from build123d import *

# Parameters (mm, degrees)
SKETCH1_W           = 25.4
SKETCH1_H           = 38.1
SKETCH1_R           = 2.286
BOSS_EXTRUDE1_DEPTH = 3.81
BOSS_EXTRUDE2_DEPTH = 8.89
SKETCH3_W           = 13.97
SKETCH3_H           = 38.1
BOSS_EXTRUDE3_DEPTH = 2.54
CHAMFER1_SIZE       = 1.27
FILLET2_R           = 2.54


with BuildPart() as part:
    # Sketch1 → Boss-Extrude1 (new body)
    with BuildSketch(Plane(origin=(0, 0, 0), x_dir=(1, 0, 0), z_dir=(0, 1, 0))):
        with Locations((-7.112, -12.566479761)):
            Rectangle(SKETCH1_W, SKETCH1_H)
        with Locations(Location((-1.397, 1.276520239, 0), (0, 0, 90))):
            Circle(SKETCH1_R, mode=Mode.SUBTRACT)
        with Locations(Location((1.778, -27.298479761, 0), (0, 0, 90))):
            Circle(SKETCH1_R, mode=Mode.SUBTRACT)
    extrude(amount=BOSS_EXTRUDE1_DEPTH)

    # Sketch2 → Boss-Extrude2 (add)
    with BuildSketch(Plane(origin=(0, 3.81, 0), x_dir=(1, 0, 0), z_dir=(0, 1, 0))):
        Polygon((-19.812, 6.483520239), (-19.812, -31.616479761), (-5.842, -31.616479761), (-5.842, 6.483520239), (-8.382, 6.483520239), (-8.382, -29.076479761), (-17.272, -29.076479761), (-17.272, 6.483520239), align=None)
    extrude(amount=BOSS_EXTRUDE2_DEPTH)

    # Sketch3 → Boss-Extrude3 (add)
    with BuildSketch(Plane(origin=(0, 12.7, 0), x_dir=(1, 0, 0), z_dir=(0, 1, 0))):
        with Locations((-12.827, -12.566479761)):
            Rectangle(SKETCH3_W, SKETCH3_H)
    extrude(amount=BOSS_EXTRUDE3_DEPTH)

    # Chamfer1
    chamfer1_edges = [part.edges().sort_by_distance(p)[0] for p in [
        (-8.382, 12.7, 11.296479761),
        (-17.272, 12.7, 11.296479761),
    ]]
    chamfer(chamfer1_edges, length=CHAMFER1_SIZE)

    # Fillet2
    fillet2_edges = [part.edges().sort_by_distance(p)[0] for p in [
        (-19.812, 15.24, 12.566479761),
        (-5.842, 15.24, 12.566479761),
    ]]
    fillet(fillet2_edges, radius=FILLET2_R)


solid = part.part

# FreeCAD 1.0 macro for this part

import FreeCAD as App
import Part
import Sketcher
Q = App.Units.Quantity


def edges_at(feature, points):
    """Names of the edges that pass closest to the given points."""
    edges = feature.Shape.Edges
    near = lambda p: min(range(len(edges)), key=lambda i: edges[i].distToShape(Part.Vertex(*p))[0])
    return sorted({f"Edge{near(p) + 1}" for p in points})


def add_polygon(sketch, points):
    """Adds a closed chain of lines whose ends are joined by coincident constraints."""
    first, n = sketch.GeometryCount, len(points)
    for a, b in zip(points, points[1:] + points[:1]):
        sketch.addGeometry(Part.LineSegment(App.Vector(*a, 0), App.Vector(*b, 0)), False)
    for i in range(n):
        sketch.addConstraint(Sketcher.Constraint("Coincident", first + i, 2, first + (i + 1) % n, 1))

doc = App.newDocument("Part")
body = doc.addObject("PartDesign::Body", "Body")

# Sketch on XZ plane
sketch1 = body.newObject("Sketcher::SketchObject", "Sketch")
sketch1.AttachmentSupport = (doc.getObject("XZ_Plane"), [""])
sketch1.MapMode = "FlatFace"
add_polygon(sketch1, [(-19.8, -6.5), (-19.8, 31.6), (5.6, 31.6), (5.6, -6.5)])  # lines 0-3
sketch1.addGeometry(Part.Circle(App.Vector(1.8, 27.3, 0), App.Vector(0, 0, 1), 2.3), False)  # 4
sketch1.addGeometry(Part.Circle(App.Vector(-1.4, -1.3, 0), App.Vector(0, 0, 1), 2.3), False)  # 5
sketch1.addConstraint(Sketcher.Constraint("Vertical", 0))
sketch1.addConstraint(Sketcher.Constraint("Horizontal", 1))
sketch1.addConstraint(Sketcher.Constraint("Vertical", 2))
sketch1.addConstraint(Sketcher.Constraint("Horizontal", 3))
sketch1.addConstraint(Sketcher.Constraint("Equal", 4, 5))
sketch1.addConstraint(Sketcher.Constraint("Diameter", 4, Q("0.18 in")))
sketch1.addConstraint(Sketcher.Constraint("DistanceX", 1, 1, 1, 2, Q("1 in")))
sketch1.addConstraint(Sketcher.Constraint("DistanceY", 0, 1, 0, 2, Q("1.5 in")))
sketch1.addConstraint(Sketcher.Constraint("DistanceX", -1, 1, 4, 3, Q("0.07 in")))
sketch1.addConstraint(Sketcher.Constraint("DistanceX", 0, 2, -1, 1, Q("0.78 in")))
sketch1.addConstraint(Sketcher.Constraint("DistanceY", 4, 3, 0, 2, Q("0.17 in")))
sketch1.addConstraint(Sketcher.Constraint("DistanceX", 5, 3, -1, 1, Q("0.055 in")))
sketch1.addConstraint(Sketcher.Constraint("DistanceY", 5, 3, 4, 3, Q("1.125 in")))
sketch1.addConstraint(Sketcher.Constraint("DistanceY", -1, 1, 4, 3, 27.29848))
pad1 = body.newObject("PartDesign::Pad", "Pad")
pad1.Profile = sketch1
pad1.Length = Q("0.15 in")
pad1.Reversed = True

# Sketch on XZ plane
sketch2 = body.newObject("Sketcher::SketchObject", "Sketch001")
sketch2.AttachmentSupport = (doc.getObject("XZ_Plane"), [""])
sketch2.MapMode = "FlatFace"
sketch2.AttachmentOffset = App.Placement(App.Vector(0, 0, -0.15 * 25.4), App.Rotation())
add_polygon(sketch2, [(-19.8, -6.5), (-19.8, 31.6), (-5.8, 31.6), (-5.8, -6.5), (-8.4, -6.5), (-8.4, 29.1), (-17.3, 29.1), (-17.3, -6.5)])  # lines 0-7
sketch2.addConstraint(Sketcher.Constraint("Vertical", 0))
sketch2.addConstraint(Sketcher.Constraint("Horizontal", 1))
sketch2.addConstraint(Sketcher.Constraint("Vertical", 2))
sketch2.addConstraint(Sketcher.Constraint("Horizontal", 3))
sketch2.addConstraint(Sketcher.Constraint("Vertical", 4))
sketch2.addConstraint(Sketcher.Constraint("Horizontal", 5))
sketch2.addConstraint(Sketcher.Constraint("Vertical", 6))
sketch2.addConstraint(Sketcher.Constraint("Horizontal", 7))
sketch2.addConstraint(Sketcher.Constraint("Horizontal", 3, 2, 6, 2))
sketch2.addConstraint(Sketcher.Constraint("Equal", 3, 7))
sketch2.addConstraint(Sketcher.Constraint("DistanceX", 3, 2, 3, 1, Q("0.1 in")))
sketch2.addConstraint(Sketcher.Constraint("DistanceY", 0, 1, 0, 2, Q("1.5 in")))
sketch2.addConstraint(Sketcher.Constraint("DistanceY", 4, 1, 4, 2, Q("1.4 in")))
sketch2.addConstraint(Sketcher.Constraint("DistanceX", 1, 1, 1, 2, Q("0.55 in")))
sketch2.addConstraint(Sketcher.Constraint("DistanceX", 0, 2, -1, 1, Q("0.78 in")))
sketch2.addConstraint(Sketcher.Constraint("DistanceY", -1, 1, 0, 2, 31.61648))
pad2 = body.newObject("PartDesign::Pad", "Pad001")
pad2.Profile = sketch2
pad2.Length = Q("0.35 in")
pad2.Reversed = True

# Sketch on XZ plane
sketch3 = body.newObject("Sketcher::SketchObject", "Sketch002")
sketch3.AttachmentSupport = (doc.getObject("XZ_Plane"), [""])
sketch3.MapMode = "FlatFace"
sketch3.AttachmentOffset = App.Placement(App.Vector(0, 0, -0.5 * 25.4), App.Rotation())
add_polygon(sketch3, [(-20, -6), (-20, 32), (-6, 32), (-6, -6)])  # lines 0-3
sketch3.addConstraint(Sketcher.Constraint("Vertical", 0))
sketch3.addConstraint(Sketcher.Constraint("Horizontal", 1))
sketch3.addConstraint(Sketcher.Constraint("Vertical", 2))
sketch3.addConstraint(Sketcher.Constraint("Horizontal", 3))
sketch3.addConstraint(Sketcher.Constraint("DistanceY", 0, 1, 0, 2, Q("1.5 in")))
sketch3.addConstraint(Sketcher.Constraint("DistanceX", 1, 1, 1, 2, Q("0.55 in")))
sketch3.addConstraint(Sketcher.Constraint("DistanceX", 0, 2, -1, 1, Q("0.78 in")))
sketch3.addConstraint(Sketcher.Constraint("DistanceY", -1, 1, 0, 2, 31.61648))
pad3 = body.newObject("PartDesign::Pad", "Pad002")
pad3.Profile = sketch3
pad3.Length = Q("0.1 in")
pad3.Reversed = True
doc.recompute()

chamfer = body.newObject("PartDesign::Chamfer", "Chamfer")
chamfer.Base = (pad3, edges_at(pad3, [(-8.382, 12.7, 11.296), (-17.272, 12.7, 11.296)]))
chamfer.Size = Q("0.05 in")
doc.recompute()

fillet = body.newObject("PartDesign::Fillet", "Fillet")
fillet.Base = (chamfer, edges_at(chamfer, [(-19.812, 15.24, 12.566), (-5.842, 15.24, 12.566)]))
fillet.Radius = Q("0.1 in")

doc.recompute()
